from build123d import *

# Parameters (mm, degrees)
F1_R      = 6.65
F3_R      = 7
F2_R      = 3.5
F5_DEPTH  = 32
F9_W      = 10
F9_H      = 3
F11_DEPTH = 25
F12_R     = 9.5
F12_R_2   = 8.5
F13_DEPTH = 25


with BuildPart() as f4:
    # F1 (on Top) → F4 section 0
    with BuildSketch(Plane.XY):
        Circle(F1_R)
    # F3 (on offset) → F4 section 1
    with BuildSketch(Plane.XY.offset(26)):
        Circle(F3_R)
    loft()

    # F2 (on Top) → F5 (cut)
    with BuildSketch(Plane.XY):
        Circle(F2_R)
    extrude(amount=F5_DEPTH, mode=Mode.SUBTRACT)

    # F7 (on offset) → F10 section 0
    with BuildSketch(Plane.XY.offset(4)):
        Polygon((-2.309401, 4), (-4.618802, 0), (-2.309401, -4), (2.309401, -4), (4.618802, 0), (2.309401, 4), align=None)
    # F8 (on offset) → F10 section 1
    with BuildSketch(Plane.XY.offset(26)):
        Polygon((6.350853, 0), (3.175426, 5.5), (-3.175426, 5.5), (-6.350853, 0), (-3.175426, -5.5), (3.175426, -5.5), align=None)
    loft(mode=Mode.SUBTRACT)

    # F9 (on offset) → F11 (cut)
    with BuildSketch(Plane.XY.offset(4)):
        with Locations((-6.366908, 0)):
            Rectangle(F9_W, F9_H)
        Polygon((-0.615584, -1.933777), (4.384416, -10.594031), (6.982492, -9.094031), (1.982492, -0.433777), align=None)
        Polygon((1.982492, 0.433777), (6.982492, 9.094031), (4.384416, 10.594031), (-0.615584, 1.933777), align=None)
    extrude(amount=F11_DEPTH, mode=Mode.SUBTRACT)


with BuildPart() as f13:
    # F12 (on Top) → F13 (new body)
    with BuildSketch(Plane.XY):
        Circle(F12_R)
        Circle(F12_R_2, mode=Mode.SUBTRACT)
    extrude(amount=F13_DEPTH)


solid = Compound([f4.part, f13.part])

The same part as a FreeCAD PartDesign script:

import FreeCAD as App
import Part
import Sketcher
from FreeCAD import Vector
Q = App.Units.Quantity

doc = App.newDocument("Part")
body = doc.addObject("PartDesign::Body", "Body")

sketch1 = body.newObject("Sketcher::SketchObject", "Sketch")
sketch1.AttachmentSupport = (doc.getObject("XY_Plane"), [""])
sketch1.MapMode = "FlatFace"
sketch1.addGeometry(Part.Circle(Vector(0, 0, 0), Vector(0, 0, 1), 7), False)
sketch1.addConstraint(Sketcher.Constraint("Coincident", 0, 3, -1, 1))
sketch1.addConstraint(Sketcher.Constraint("Diameter", 0, 13.3))

sketch2 = body.newObject("Sketcher::SketchObject", "Sketch001")
sketch2.AttachmentSupport = (doc.getObject("XY_Plane"), [""])
sketch2.MapMode = "FlatFace"
sketch2.AttachmentOffset = App.Placement(Vector(0, 0, 26), App.Rotation())
sketch2.addGeometry(Part.Circle(Vector(0, 0, 0), Vector(0, 0, 1), 7), False)
sketch2.addConstraint(Sketcher.Constraint("Coincident", 0, 3, -1, 1))
sketch2.addConstraint(Sketcher.Constraint("Diameter", 0, 14.0))

additiveloft = body.newObject("PartDesign::AdditiveLoft", "AdditiveLoft")
additiveloft.Profile = sketch1
additiveloft.Sections = [sketch2]

sketch3 = body.newObject("Sketcher::SketchObject", "Sketch002")
sketch3.AttachmentSupport = (doc.getObject("XY_Plane"), [""])
sketch3.MapMode = "FlatFace"
sketch3.addGeometry(Part.Circle(Vector(0, 0, 0), Vector(0, 0, 1), 3.5), False)
sketch3.addConstraint(Sketcher.Constraint("Coincident", 0, 3, -1, 1))
sketch3.addConstraint(Sketcher.Constraint("Diameter", 0, 7.0))
pocket1 = body.newObject("PartDesign::Pocket", "Pocket")
pocket1.Profile = sketch3
pocket1.Length = 32
pocket1.Reversed = True

sketch4 = body.newObject("Sketcher::SketchObject", "Sketch003")
sketch4.AttachmentSupport = (doc.getObject("XY_Plane"), [""])
sketch4.MapMode = "FlatFace"
sketch4.AttachmentOffset = App.Placement(Vector(0, 0, 4), App.Rotation())
sketch4.addGeometry(Part.LineSegment(Vector(-2.3, 4, 0), Vector(-4.6, 0, 0)), False)
sketch4.addGeometry(Part.LineSegment(Vector(-4.6, 0, 0), Vector(-2.3, -4, 0)), False)
sketch4.addGeometry(Part.LineSegment(Vector(-2.3, -4, 0), Vector(2.3, -4, 0)), False)
sketch4.addGeometry(Part.LineSegment(Vector(2.3, -4, 0), Vector(4.6, 0, 0)), False)
sketch4.addGeometry(Part.LineSegment(Vector(4.6, 0, 0), Vector(2.3, 4, 0)), False)
sketch4.addGeometry(Part.LineSegment(Vector(2.3, 4, 0), Vector(-2.3, 4, 0)), False)
sketch4.addConstraint(Sketcher.Constraint("Coincident", 0, 2, 1, 1))
sketch4.addConstraint(Sketcher.Constraint("Coincident", 1, 2, 2, 1))
sketch4.addConstraint(Sketcher.Constraint("Coincident", 2, 2, 3, 1))
sketch4.addConstraint(Sketcher.Constraint("Coincident", 3, 2, 4, 1))
sketch4.addConstraint(Sketcher.Constraint("Coincident", 4, 2, 5, 1))
sketch4.addConstraint(Sketcher.Constraint("Coincident", 5, 2, 0, 1))
sketch4.addConstraint(Sketcher.Constraint("Horizontal", 2))
sketch4.addConstraint(Sketcher.Constraint("Horizontal", 5))
sketch4.addConstraint(Sketcher.Constraint("Symmetric", 0, 2, 3, 2, -1, 1))
sketch4.addConstraint(Sketcher.Constraint("Symmetric", 1, 2, 4, 2, -1, 1))
sketch4.addConstraint(Sketcher.Constraint("PointOnObject", 0, 2, -1))
sketch4.addConstraint(Sketcher.Constraint("Parallel", 0, 3))
sketch4.addConstraint(Sketcher.Constraint("Vertical", 2, 2, 4, 2))
sketch4.addConstraint(Sketcher.Constraint("Angle", 0, Q("-119.999999 deg")))
sketch4.addConstraint(Sketcher.Constraint("DistanceY", 1, 2, -1, 1, 4.0))
sketch4.addConstraint(Sketcher.Constraint("DistanceX", 2, 1, 2, 2, 4.618802))

sketch5 = body.newObject("Sketcher::SketchObject", "Sketch004")
sketch5.AttachmentSupport = (doc.getObject("XY_Plane"), [""])
sketch5.MapMode = "FlatFace"
sketch5.AttachmentOffset = App.Placement(Vector(0, 0, 26), App.Rotation())
sketch5.addGeometry(Part.LineSegment(Vector(6, 0, 0), Vector(3, 6, 0)), False)
sketch5.addGeometry(Part.LineSegment(Vector(3, 6, 0), Vector(-3, 6, 0)), False)
sketch5.addGeometry(Part.LineSegment(Vector(-3, 6, 0), Vector(-6, 0, 0)), False)
sketch5.addGeometry(Part.LineSegment(Vector(-6, 0, 0), Vector(-3, -6, 0)), False)
sketch5.addGeometry(Part.LineSegment(Vector(-3, -6, 0), Vector(3, -6, 0)), False)
sketch5.addGeometry(Part.LineSegment(Vector(3, -6, 0), Vector(6, 0, 0)), False)
sketch5.addConstraint(Sketcher.Constraint("Coincident", 0, 2, 1, 1))
sketch5.addConstraint(Sketcher.Constraint("Coincident", 1, 2, 2, 1))
sketch5.addConstraint(Sketcher.Constraint("Coincident", 2, 2, 3, 1))
sketch5.addConstraint(Sketcher.Constraint("Coincident", 3, 2, 4, 1))
sketch5.addConstraint(Sketcher.Constraint("Coincident", 4, 2, 5, 1))
sketch5.addConstraint(Sketcher.Constraint("Coincident", 5, 2, 0, 1))
sketch5.addConstraint(Sketcher.Constraint("Horizontal", 1))
sketch5.addConstraint(Sketcher.Constraint("Horizontal", 4))
sketch5.addConstraint(Sketcher.Constraint("Symmetric", 0, 2, 3, 2, -1, 1))
sketch5.addConstraint(Sketcher.Constraint("Symmetric", 2, 2, 5, 2, -1, 1))
sketch5.addConstraint(Sketcher.Constraint("PointOnObject", 2, 2, -1))
sketch5.addConstraint(Sketcher.Constraint("Parallel", 2, 5))
sketch5.addConstraint(Sketcher.Constraint("Vertical", 1, 2, 3, 2))
sketch5.addConstraint(Sketcher.Constraint("Angle", 0, Q("120.000004 deg")))
sketch5.addConstraint(Sketcher.Constraint("DistanceY", 3, 2, 1, 2, 11.0))
sketch5.addConstraint(Sketcher.Constraint("DistanceX", 1, 2, 1, 1, 6.350852))

subtractiveloft = body.newObject("PartDesign::SubtractiveLoft", "SubtractiveLoft")
subtractiveloft.Profile = sketch4
subtractiveloft.Sections = [sketch5]

sketch6 = body.newObject("Sketcher::SketchObject", "Sketch005")
sketch6.AttachmentSupport = (doc.getObject("XY_Plane"), [""])
sketch6.MapMode = "FlatFace"
sketch6.AttachmentOffset = App.Placement(Vector(0, 0, 4), App.Rotation())
sketch6.addGeometry(Part.LineSegment(Vector(-11.4, 1.5, 0), Vector(-11.4, -1.5, 0)), False)
sketch6.addGeometry(Part.LineSegment(Vector(-11.4, -1.5, 0), Vector(-1.4, -1.5, 0)), False)
sketch6.addGeometry(Part.LineSegment(Vector(-1.4, -1.5, 0), Vector(-1.4, 1.5, 0)), False)
sketch6.addGeometry(Part.LineSegment(Vector(-1.4, 1.5, 0), Vector(-11.4, 1.5, 0)), False)
sketch6.addGeometry(Part.LineSegment(Vector(-0.6, -1.9, 0), Vector(4.4, -10.6, 0)), False)
sketch6.addGeometry(Part.LineSegment(Vector(4.4, -10.6, 0), Vector(7, -9.1, 0)), False)
sketch6.addGeometry(Part.LineSegment(Vector(7, -9.1, 0), Vector(2, -0.4, 0)), False)
sketch6.addGeometry(Part.LineSegment(Vector(2, -0.4, 0), Vector(-0.6, -1.9, 0)), False)
sketch6.addGeometry(Part.LineSegment(Vector(2, 0.4, 0), Vector(7, 9.1, 0)), False)
sketch6.addGeometry(Part.LineSegment(Vector(7, 9.1, 0), Vector(4.4, 10.6, 0)), False)
sketch6.addGeometry(Part.LineSegment(Vector(4.4, 10.6, 0), Vector(-0.6, 1.9, 0)), False)
sketch6.addGeometry(Part.LineSegment(Vector(-0.6, 1.9, 0), Vector(2, 0.4, 0)), False)
sketch6.addConstraint(Sketcher.Constraint("Coincident", 0, 2, 1, 1))
sketch6.addConstraint(Sketcher.Constraint("Coincident", 1, 2, 2, 1))
sketch6.addConstraint(Sketcher.Constraint("Coincident", 2, 2, 3, 1))
sketch6.addConstraint(Sketcher.Constraint("Coincident", 3, 2, 0, 1))
sketch6.addConstraint(Sketcher.Constraint("Coincident", 4, 2, 5, 1))
sketch6.addConstraint(Sketcher.Constraint("Coincident", 5, 2, 6, 1))
sketch6.addConstraint(Sketcher.Constraint("Coincident", 6, 2, 7, 1))
sketch6.addConstraint(Sketcher.Constraint("Coincident", 7, 2, 4, 1))
sketch6.addConstraint(Sketcher.Constraint("Coincident", 8, 2, 9, 1))
sketch6.addConstraint(Sketcher.Constraint("Coincident", 9, 2, 10, 1))
sketch6.addConstraint(Sketcher.Constraint("Coincident", 10, 2, 11, 1))
sketch6.addConstraint(Sketcher.Constraint("Coincident", 11, 2, 8, 1))
sketch6.addConstraint(Sketcher.Constraint("Vertical", 0))
sketch6.addConstraint(Sketcher.Constraint("Horizontal", 1))
sketch6.addConstraint(Sketcher.Constraint("Vertical", 2))
sketch6.addConstraint(Sketcher.Constraint("Horizontal", 3))
sketch6.addConstraint(Sketcher.Constraint("Symmetric", 5, 2, 8, 2, -1))
sketch6.addConstraint(Sketcher.Constraint("Symmetric", 4, 2, 9, 2, -1))
sketch6.addConstraint(Sketcher.Constraint("Symmetric", 7, 2, 10, 2, -1))
sketch6.addConstraint(Sketcher.Constraint("Symmetric", 6, 2, 11, 2, -1))
sketch6.addConstraint(Sketcher.Constraint("Perpendicular", 4, 5))
sketch6.addConstraint(Sketcher.Constraint("Perpendicular", 5, 6))
sketch6.addConstraint(Sketcher.Constraint("Perpendicular", 6, 7))
sketch6.addConstraint(Sketcher.Constraint("DistanceX", 1, 1, 1, 2, 10.0))
sketch6.addConstraint(Sketcher.Constraint("DistanceY", 0, 2, 0, 1, 3.0))
sketch6.addConstraint(Sketcher.Constraint("Angle", 4, Q("-60 deg")))
sketch6.addConstraint(Sketcher.Constraint("Distance", 4, 10.0))
sketch6.addConstraint(Sketcher.Constraint("Distance", 5, 3.0))
sketch6.addConstraint(Sketcher.Constraint("DistanceY", 0, 2, -1, 1, 1.5))
sketch6.addConstraint(Sketcher.Constraint("DistanceX", 1, 2, 5, 2, 8.3494))
sketch6.addConstraint(Sketcher.Constraint("DistanceY", 4, 2, -1, 1, 10.594031))
sketch6.addConstraint(Sketcher.Constraint("DistanceX", -1, 1, 5, 2, 6.982492))
pocket2 = body.newObject("PartDesign::Pocket", "Pocket001")
pocket2.Profile = sketch6
pocket2.Length = 25
pocket2.Reversed = True
body2 = doc.addObject("PartDesign::Body", "Body001")

sketch7 = body2.newObject("Sketcher::SketchObject", "Sketch006")
sketch7.AttachmentSupport = (doc.getObject("XY_Plane001"), [""])
sketch7.MapMode = "FlatFace"
sketch7.addGeometry(Part.Circle(Vector(0, 0, 0), Vector(0, 0, 1), 10), False)
sketch7.addGeometry(Part.Circle(Vector(0, 0, 0), Vector(0, 0, 1), 8), False)
sketch7.addConstraint(Sketcher.Constraint("Coincident", 0, 3, -1, 1))
sketch7.addConstraint(Sketcher.Constraint("Coincident", 1, 3, -1, 1))
sketch7.addConstraint(Sketcher.Constraint("Diameter", 0, 19.0))
sketch7.addConstraint(Sketcher.Constraint("Diameter", 1, 17.0))
pad1 = body2.newObject("PartDesign::Pad", "Pad")
pad1.Profile = sketch7
pad1.Length = 25

doc.recompute()
